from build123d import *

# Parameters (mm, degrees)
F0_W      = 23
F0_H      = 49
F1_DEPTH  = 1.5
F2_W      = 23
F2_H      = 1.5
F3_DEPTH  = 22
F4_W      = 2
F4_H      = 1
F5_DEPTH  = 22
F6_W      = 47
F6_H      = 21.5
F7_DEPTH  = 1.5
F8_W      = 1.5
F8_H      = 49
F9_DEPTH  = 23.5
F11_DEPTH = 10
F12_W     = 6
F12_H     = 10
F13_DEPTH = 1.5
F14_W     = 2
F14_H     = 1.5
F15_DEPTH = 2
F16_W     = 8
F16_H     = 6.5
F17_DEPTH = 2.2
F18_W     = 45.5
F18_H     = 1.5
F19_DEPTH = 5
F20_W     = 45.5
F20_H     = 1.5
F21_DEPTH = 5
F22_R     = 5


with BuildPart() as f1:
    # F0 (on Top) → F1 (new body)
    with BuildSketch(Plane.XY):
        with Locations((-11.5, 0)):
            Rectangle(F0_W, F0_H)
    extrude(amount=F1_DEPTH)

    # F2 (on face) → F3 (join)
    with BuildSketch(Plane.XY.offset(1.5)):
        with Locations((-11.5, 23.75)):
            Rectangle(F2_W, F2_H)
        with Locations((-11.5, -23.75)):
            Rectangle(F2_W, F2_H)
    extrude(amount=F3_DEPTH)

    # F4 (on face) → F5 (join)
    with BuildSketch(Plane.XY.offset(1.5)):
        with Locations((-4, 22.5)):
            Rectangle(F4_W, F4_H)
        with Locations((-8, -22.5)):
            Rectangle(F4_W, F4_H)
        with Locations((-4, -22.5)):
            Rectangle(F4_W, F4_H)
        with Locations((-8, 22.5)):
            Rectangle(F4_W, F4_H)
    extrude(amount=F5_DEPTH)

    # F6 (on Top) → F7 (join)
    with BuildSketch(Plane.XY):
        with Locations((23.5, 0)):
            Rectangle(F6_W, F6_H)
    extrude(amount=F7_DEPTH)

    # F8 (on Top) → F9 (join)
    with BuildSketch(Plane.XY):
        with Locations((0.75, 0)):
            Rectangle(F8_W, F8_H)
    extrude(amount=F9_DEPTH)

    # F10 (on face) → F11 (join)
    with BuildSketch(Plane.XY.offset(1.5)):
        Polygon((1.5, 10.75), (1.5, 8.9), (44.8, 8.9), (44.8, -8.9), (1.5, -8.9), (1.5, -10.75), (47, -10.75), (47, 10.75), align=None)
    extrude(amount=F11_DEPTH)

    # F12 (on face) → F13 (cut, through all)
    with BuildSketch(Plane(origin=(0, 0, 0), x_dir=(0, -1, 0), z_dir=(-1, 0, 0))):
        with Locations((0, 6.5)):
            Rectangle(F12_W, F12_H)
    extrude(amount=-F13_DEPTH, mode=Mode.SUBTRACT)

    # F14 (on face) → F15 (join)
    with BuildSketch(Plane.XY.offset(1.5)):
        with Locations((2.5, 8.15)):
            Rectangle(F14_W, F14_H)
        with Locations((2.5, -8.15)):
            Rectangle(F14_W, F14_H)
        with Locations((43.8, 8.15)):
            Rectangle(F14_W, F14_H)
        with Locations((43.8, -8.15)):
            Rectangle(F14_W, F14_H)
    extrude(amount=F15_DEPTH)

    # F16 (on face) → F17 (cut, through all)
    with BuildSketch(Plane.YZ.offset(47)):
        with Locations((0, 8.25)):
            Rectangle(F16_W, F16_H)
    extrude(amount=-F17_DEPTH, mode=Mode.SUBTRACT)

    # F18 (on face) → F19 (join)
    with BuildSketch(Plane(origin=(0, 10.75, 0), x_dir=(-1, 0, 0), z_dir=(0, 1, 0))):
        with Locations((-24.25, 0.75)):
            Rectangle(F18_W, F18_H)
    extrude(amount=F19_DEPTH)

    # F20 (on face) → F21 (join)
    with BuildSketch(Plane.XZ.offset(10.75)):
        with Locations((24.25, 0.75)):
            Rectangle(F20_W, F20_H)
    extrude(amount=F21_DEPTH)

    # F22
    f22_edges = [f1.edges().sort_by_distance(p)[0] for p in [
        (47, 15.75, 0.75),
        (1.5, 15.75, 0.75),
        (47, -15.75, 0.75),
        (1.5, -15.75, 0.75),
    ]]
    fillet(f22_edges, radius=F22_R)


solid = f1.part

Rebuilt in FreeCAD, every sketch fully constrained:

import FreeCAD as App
import Part
import Sketcher


def edges_at(feature, points):
    """Names of the edges that pass closest to the given points."""
    edges = feature.Shape.Edges
    near = lambda p: min(range(len(edges)), key=lambda i: edges[i].distToShape(Part.Vertex(*p))[0])
    return sorted({f"Edge{near(p) + 1}" for p in points})


def add_polygon(sketch, points):
    """Adds a closed chain of lines whose ends are joined by coincident constraints."""
    first, n = sketch.GeometryCount, len(points)
    for a, b in zip(points, points[1:] + points[:1]):
        sketch.addGeometry(Part.LineSegment(App.Vector(*a, 0), App.Vector(*b, 0)), False)
    for i in range(n):
        sketch.addConstraint(Sketcher.Constraint("Coincident", first + i, 2, first + (i + 1) % n, 1))

doc = App.newDocument("Part")
params = doc.addObject("Spreadsheet::Sheet", "Params")
for row, (alias, value) in enumerate([
    ("sketch1_width", "23 mm"),
    ("sketch1_height", "49 mm"),
    ("pad1_length", "1.5 mm"),
    ("sketch2_width", "23 mm"),
    ("sketch2_height", "1.5 mm"),
    ("pad2_length", "22 mm"),
    ("sketch3_width", "2 mm"),
    ("sketch3_height", "1 mm"),
    ("pad3_length", "22 mm"),
    ("sketch4_width", "47 mm"),
    ("sketch4_height", "21.5 mm"),
    ("pad4_length", "1.5 mm"),
    ("sketch5_height", "49 mm"),
    ("sketch5_width", "1.5 mm"),
    ("pad5_length", "23.5 mm"),
    ("sketch6_width", "43.3 mm"),
    ("sketch6_width2", "45.5 mm"),
    ("sketch6_height", "17.8 mm"),
    ("sketch6_height2", "21.5 mm"),
    ("pad6_length", "10 mm"),
    ("sketch7_width", "6 mm"),
    ("sketch7_height", "10 mm"),
    ("pocket1_length", "1.5 mm"),
    ("sketch8_width", "2 mm"),
    ("sketch8_height", "1.5 mm"),
    ("pad7_length", "2 mm"),
    ("sketch9_width", "8 mm"),
    ("sketch9_height", "6.5 mm"),
    ("pocket2_length", "2.2 mm"),
    ("sketch10_width", "45.5 mm"),
    ("sketch10_height", "1.5 mm"),
    ("pad8_length", "5 mm"),
    ("sketch11_width", "45.5 mm"),
    ("sketch11_height", "1.5 mm"),
    ("pad9_length", "5 mm"),
    ("fillet_radius", "5 mm"),
], start=1):
    params.set(f"A{row}", alias)
    params.set(f"B{row}", "=" + value)
    params.setAlias(f"B{row}", alias)

body = doc.addObject("PartDesign::Body", "Body")

sketch1 = doc.addObject("Sketcher::SketchObject", "Sketch")
body.addObject(sketch1)
sketch1.AttachmentSupport = (doc.XY_Plane, [""])
sketch1.MapMode = "FlatFace"
add_polygon(sketch1, [(-23, 24), (-23, -24), (0, -24), (0, 24)])
sketch1.addConstraint([
    Sketcher.Constraint("Vertical", 0),
    Sketcher.Constraint("Horizontal", 1),
    Sketcher.Constraint("Vertical", 2),
    Sketcher.Constraint("Horizontal", 3),
    Sketcher.Constraint("Symmetric", 1, 2, 2, 2, -1, 1),
    Sketcher.Constraint("DistanceX", 1, 1, 1, 2, 23.0),
    Sketcher.Constraint("DistanceY", 0, 2, 0, 1, 49.0),
])
sketch1.setExpression("Constraints[9]", "Params.sketch1_width")
sketch1.setExpression("Constraints[10]", "Params.sketch1_height")
pad1 = doc.addObject("PartDesign::Pad", "Pad")
body.addObject(pad1)
pad1.Profile = sketch1
pad1.setExpression("Length", "Params.pad1_length")

sketch2 = doc.addObject("Sketcher::SketchObject", "Sketch001")
body.addObject(sketch2)
sketch2.AttachmentSupport = (doc.XY_Plane, [""])
sketch2.MapMode = "FlatFace"
sketch2.AttachmentOffset = App.Placement(App.Vector(0, 0, 1.5), App.Rotation())
add_polygon(sketch2, [(-23, 24.5), (-23, 23), (0, 23), (0, 24.5)])
add_polygon(sketch2, [(-23, -23), (-23, -24.5), (0, -24.5), (0, -23)])
sketch2.addConstraint([
    Sketcher.Constraint("Vertical", 0),
    Sketcher.Constraint("Horizontal", 1),
    Sketcher.Constraint("Vertical", 2),
    Sketcher.Constraint("Horizontal", 3),
    Sketcher.Constraint("Vertical", 4),
    Sketcher.Constraint("Horizontal", 5),
    Sketcher.Constraint("Vertical", 6),
    Sketcher.Constraint("Horizontal", 7),
    Sketcher.Constraint("Symmetric", 2, 2, 5, 2, -1, 1),
    Sketcher.Constraint("Symmetric", 1, 2, 6, 2, -1),
    Sketcher.Constraint("Vertical", 3, 2, 4, 2),
    Sketcher.Constraint("DistanceX", 1, 1, 1, 2, 23.0),
    Sketcher.Constraint("DistanceY", 0, 2, 0, 1, 1.5),
    Sketcher.Constraint("DistanceY", -1, 1, 0, 2, 23.0),
])
sketch2.setExpression("Constraints[19]", "Params.sketch2_width")
sketch2.setExpression("Constraints[20]", "Params.sketch2_height")
pad2 = doc.addObject("PartDesign::Pad", "Pad001")
body.addObject(pad2)
pad2.Profile = sketch2
pad2.setExpression("Length", "Params.pad2_length")

sketch3 = doc.addObject("Sketcher::SketchObject", "Sketch002")
body.addObject(sketch3)
sketch3.AttachmentSupport = (doc.XY_Plane, [""])
sketch3.MapMode = "FlatFace"
sketch3.AttachmentOffset = App.Placement(App.Vector(0, 0, 1.5), App.Rotation())
add_polygon(sketch3, [(-5, 23), (-5, 22), (-3, 22), (-3, 23)])
add_polygon(sketch3, [(-9, -22), (-9, -23), (-7, -23), (-7, -22)])
add_polygon(sketch3, [(-5, -22), (-5, -23), (-3, -23), (-3, -22)])
add_polygon(sketch3, [(-9, 23), (-9, 22), (-7, 22), (-7, 23)])
sketch3.addConstraint([
    Sketcher.Constraint("Vertical", 0),
    Sketcher.Constraint("Horizontal", 1),
    Sketcher.Constraint("Vertical", 2),
    Sketcher.Constraint("Horizontal", 3),
    Sketcher.Constraint("Vertical", 4),
    Sketcher.Constraint("Horizontal", 5),
    Sketcher.Constraint("Vertical", 6),
    Sketcher.Constraint("Horizontal", 7),
    Sketcher.Constraint("Vertical", 8),
    Sketcher.Constraint("Horizontal", 9),
    Sketcher.Constraint("Vertical", 10),
    Sketcher.Constraint("Horizontal", 11),
    Sketcher.Constraint("Vertical", 12),
    Sketcher.Constraint("Horizontal", 13),
    Sketcher.Constraint("Vertical", 14),
    Sketcher.Constraint("Horizontal", 15),
    Sketcher.Constraint("Symmetric", 3, 2, 8, 2, -1),
    Sketcher.Constraint("Symmetric", 1, 2, 10, 2, -1),
    Sketcher.Constraint("Symmetric", 7, 2, 12, 2, -1),
    Sketcher.Constraint("Symmetric", 5, 2, 14, 2, -1),
    Sketcher.Constraint("Horizontal", 5, 2, 8, 2),
    Sketcher.Constraint("Horizontal", 7, 2, 10, 2),
    Sketcher.Constraint("Equal", 3, 5),
    Sketcher.Constraint("DistanceX", 1, 1, 1, 2, 2.0),
    Sketcher.Constraint("DistanceY", 0, 2, 0, 1, 1.0),
    Sketcher.Constraint("DistanceX", 0, 2, -1, 1, 5.0),
    Sketcher.Constraint("DistanceY", -1, 1, 0, 2, 22.0),
    Sketcher.Constraint("DistanceX", 4, 2, -1, 1, 9.0),
])
sketch3.setExpression("Constraints[39]", "Params.sketch3_width")
sketch3.setExpression("Constraints[40]", "Params.sketch3_height")
pad3 = doc.addObject("PartDesign::Pad", "Pad002")
body.addObject(pad3)
pad3.Profile = sketch3
pad3.setExpression("Length", "Params.pad3_length")

sketch4 = doc.addObject("Sketcher::SketchObject", "Sketch003")
body.addObject(sketch4)
sketch4.AttachmentSupport = (doc.XY_Plane, [""])
sketch4.MapMode = "FlatFace"
add_polygon(sketch4, [(0, 11), (0, -11), (47, -11), (47, 11)])
sketch4.addConstraint([
    Sketcher.Constraint("Vertical", 0),
    Sketcher.Constraint("Horizontal", 1),
    Sketcher.Constraint("Vertical", 2),
    Sketcher.Constraint("Horizontal", 3),
    Sketcher.Constraint("Symmetric", 0, 2, 3, 2, -1, 1),
    Sketcher.Constraint("DistanceX", 1, 1, 1, 2, 47.0),
    Sketcher.Constraint("DistanceY", 0, 2, 0, 1, 21.5),
])
sketch4.setExpression("Constraints[9]", "Params.sketch4_width")
sketch4.setExpression("Constraints[10]", "Params.sketch4_height")
pad4 = doc.addObject("PartDesign::Pad", "Pad003")
body.addObject(pad4)
pad4.Profile = sketch4
pad4.setExpression("Length", "Params.pad4_length")

sketch5 = doc.addObject("Sketcher::SketchObject", "Sketch004")
body.addObject(sketch5)
sketch5.AttachmentSupport = (doc.XY_Plane, [""])
sketch5.MapMode = "FlatFace"
add_polygon(sketch5, [(0, 24.5), (0, -24.5), (1.5, -24.5), (1.5, 24.5)])
sketch5.addConstraint([
    Sketcher.Constraint("Vertical", 0),
    Sketcher.Constraint("Horizontal", 1),
    Sketcher.Constraint("Vertical", 2),
    Sketcher.Constraint("Horizontal", 3),
    Sketcher.Constraint("Symmetric", 0, 2, 3, 2, -1, 1),
    Sketcher.Constraint("DistanceY", 0, 2, 0, 1, 49.0),
    Sketcher.Constraint("DistanceX", 1, 1, 1, 2, 1.5),
])
sketch5.setExpression("Constraints[9]", "Params.sketch5_height")
sketch5.setExpression("Constraints[10]", "Params.sketch5_width")
pad5 = doc.addObject("PartDesign::Pad", "Pad004")
body.addObject(pad5)
pad5.Profile = sketch5
pad5.setExpression("Length", "Params.pad5_length")

sketch6 = doc.addObject("Sketcher::SketchObject", "Sketch005")
body.addObject(sketch6)
sketch6.AttachmentSupport = (doc.XY_Plane, [""])
sketch6.MapMode = "FlatFace"
sketch6.AttachmentOffset = App.Placement(App.Vector(0, 0, 1.5), App.Rotation())
add_polygon(sketch6, [(1.5, 10.8), (1.5, 8.9), (44.8, 8.9), (44.8, -8.9), (1.5, -8.9), (1.5, -10.8), (47, -10.8), (47, 10.8)])
sketch6.addConstraint([
    Sketcher.Constraint("Vertical", 0),
    Sketcher.Constraint("Horizontal", 1),
    Sketcher.Constraint("Vertical", 2),
    Sketcher.Constraint("Horizontal", 3),
    Sketcher.Constraint("Vertical", 4),
    Sketcher.Constraint("Horizontal", 5),
    Sketcher.Constraint("Vertical", 6),
    Sketcher.Constraint("Horizontal", 7),
    Sketcher.Constraint("Symmetric", 0, 2, 3, 2, -1),
    Sketcher.Constraint("Equal", 0, 4),
    Sketcher.Constraint("DistanceX", 1, 1, 1, 2, 43.3),
    Sketcher.Constraint("DistanceX", 5, 1, 5, 2, 45.5),
    Sketcher.Constraint("DistanceY", 2, 2, 2, 1, 17.8),
    Sketcher.Constraint("DistanceY", 6, 1, 6, 2, 21.5),
    Sketcher.Constraint("DistanceX", -1, 1, 5, 2, 47.0),
])
sketch6.setExpression("Constraints[18]", "Params.sketch6_width")
sketch6.setExpression("Constraints[19]", "Params.sketch6_width2")
sketch6.setExpression("Constraints[20]", "Params.sketch6_height")
sketch6.setExpression("Constraints[21]", "Params.sketch6_height2")
pad6 = doc.addObject("PartDesign::Pad", "Pad005")
body.addObject(pad6)
pad6.Profile = sketch6
pad6.setExpression("Length", "Params.pad6_length")

sketch7 = doc.addObject("Sketcher::SketchObject", "Sketch006")
body.addObject(sketch7)
sketch7.AttachmentSupport = (doc.YZ_Plane, [""])
sketch7.MapMode = "FlatFace"
add_polygon(sketch7, [(3, 12), (3, 2), (-3, 2), (-3, 12)])
sketch7.addConstraint([
    Sketcher.Constraint("Vertical", 0),
    Sketcher.Constraint("Horizontal", 1),
    Sketcher.Constraint("Vertical", 2),
    Sketcher.Constraint("Horizontal", 3),
    Sketcher.Constraint("DistanceX", 1, 2, 1, 1, 6.0),
    Sketcher.Constraint("DistanceY", 0, 2, 0, 1, 10.0),
    Sketcher.Constraint("DistanceX", -1, 1, 0, 2, 3.0),
    Sketcher.Constraint("DistanceY", -1, 1, 0, 2, 1.5),
])
sketch7.setExpression("Constraints[8]", "Params.sketch7_width")
sketch7.setExpression("Constraints[9]", "Params.sketch7_height")
pocket1 = doc.addObject("PartDesign::Pocket", "Pocket")
body.addObject(pocket1)
pocket1.Profile = sketch7
pocket1.setExpression("Length", "Params.pocket1_length")
pocket1.Reversed = True

sketch8 = doc.addObject("Sketcher::SketchObject", "Sketch007")
body.addObject(sketch8)
sketch8.AttachmentSupport = (doc.XY_Plane, [""])
sketch8.MapMode = "FlatFace"
sketch8.AttachmentOffset = App.Placement(App.Vector(0, 0, 1.5), App.Rotation())
add_polygon(sketch8, [(1.5, 8.9), (1.5, 7.4), (3.5, 7.4), (3.5, 8.9)])
add_polygon(sketch8, [(1.5, -7.4), (1.5, -8.9), (3.5, -8.9), (3.5, -7.4)])
add_polygon(sketch8, [(42.8, 8.9), (42.8, 7.4), (44.8, 7.4), (44.8, 8.9)])
add_polygon(sketch8, [(42.8, -7.4), (42.8, -8.9), (44.8, -8.9), (44.8, -7.4)])
sketch8.addConstraint([
    Sketcher.Constraint("Vertical", 0),
    Sketcher.Constraint("Horizontal", 1),
    Sketcher.Constraint("Vertical", 2),
    Sketcher.Constraint("Horizontal", 3),
    Sketcher.Constraint("Vertical", 4),
    Sketcher.Constraint("Horizontal", 5),
    Sketcher.Constraint("Vertical", 6),
    Sketcher.Constraint("Horizontal", 7),
    Sketcher.Constraint("Vertical", 8),
    Sketcher.Constraint("Horizontal", 9),
    Sketcher.Constraint("Vertical", 10),
    Sketcher.Constraint("Horizontal", 11),
    Sketcher.Constraint("Vertical", 12),
    Sketcher.Constraint("Horizontal", 13),
    Sketcher.Constraint("Vertical", 14),
    Sketcher.Constraint("Horizontal", 15),
    Sketcher.Constraint("Symmetric", 3, 2, 4, 2, -1),
    Sketcher.Constraint("Symmetric", 1, 2, 6, 2, -1),
    Sketcher.Constraint("Symmetric", 11, 2, 12, 2, -1),
    Sketcher.Constraint("Symmetric", 9, 2, 14, 2, -1),
    Sketcher.Constraint("Horizontal", 1, 2, 8, 2),
    Sketcher.Constraint("Horizontal", 3, 2, 10, 2),
    Sketcher.Constraint("Equal", 7, 9),
    Sketcher.Constraint("DistanceX", 1, 1, 1, 2, 2.0),
    Sketcher.Constraint("DistanceY", 0, 2, 0, 1, 1.5),
    Sketcher.Constraint("DistanceX", -1, 1, 0, 2, 1.5),
    Sketcher.Constraint("DistanceY", -1, 1, 0, 2, 7.4),
    Sketcher.Constraint("DistanceX", -1, 1, 8, 2, 42.8),
])
sketch8.setExpression("Constraints[39]", "Params.sketch8_width")
sketch8.setExpression("Constraints[40]", "Params.sketch8_height")
pad7 = doc.addObject("PartDesign::Pad", "Pad006")
body.addObject(pad7)
pad7.Profile = sketch8
pad7.setExpression("Length", "Params.pad7_length")

sketch9 = doc.addObject("Sketcher::SketchObject", "Sketch008")
body.addObject(sketch9)
sketch9.AttachmentSupport = (doc.YZ_Plane, [""])
sketch9.MapMode = "FlatFace"
sketch9.AttachmentOffset = App.Placement(App.Vector(0, 0, 47), App.Rotation())
add_polygon(sketch9, [(-4, 12), (-4, 5), (4, 5), (4, 12)])
sketch9.addConstraint([
    Sketcher.Constraint("Vertical", 0),
    Sketcher.Constraint("Horizontal", 1),
    Sketcher.Constraint("Vertical", 2),
    Sketcher.Constraint("Horizontal", 3),
    Sketcher.Constraint("DistanceX", 1, 1, 1, 2, 8.0),
    Sketcher.Constraint("DistanceY", 0, 2, 0, 1, 6.5),
    Sketcher.Constraint("DistanceX", 0, 2, -1, 1, 4.0),
    Sketcher.Constraint("DistanceY", -1, 1, 0, 2, 5.0),
])
sketch9.setExpression("Constraints[8]", "Params.sketch9_width")
sketch9.setExpression("Constraints[9]", "Params.sketch9_height")
pocket2 = doc.addObject("PartDesign::Pocket", "Pocket001")
body.addObject(pocket2)
pocket2.Profile = sketch9
pocket2.setExpression("Length", "Params.pocket2_length")

sketch10 = doc.addObject("Sketcher::SketchObject", "Sketch009")
body.addObject(sketch10)
sketch10.AttachmentSupport = (doc.XZ_Plane, [""])
sketch10.MapMode = "FlatFace"
sketch10.AttachmentOffset = App.Placement(App.Vector(0, 0, -10.75), App.Rotation())
add_polygon(sketch10, [(47, 1.5), (47, 0), (1.5, 0), (1.5, 1.5)])
sketch10.addConstraint([
    Sketcher.Constraint("Vertical", 0),
    Sketcher.Constraint("Horizontal", 1),
    Sketcher.Constraint("Vertical", 2),
    Sketcher.Constraint("Horizontal", 3),
    Sketcher.Constraint("PointOnObject", 0, 2, -1),
    Sketcher.Constraint("DistanceX", 1, 2, 1, 1, 45.5),
    Sketcher.Constraint("DistanceY", 0, 2, 0, 1, 1.5),
    Sketcher.Constraint("DistanceX", -1, 1, 0, 2, 47.0),
])
sketch10.setExpression("Constraints[9]", "Params.sketch10_width")
sketch10.setExpression("Constraints[10]", "Params.sketch10_height")
pad8 = doc.addObject("PartDesign::Pad", "Pad007")
body.addObject(pad8)
pad8.Profile = sketch10
pad8.setExpression("Length", "Params.pad8_length")
pad8.Reversed = True

sketch11 = doc.addObject("Sketcher::SketchObject", "Sketch010")
body.addObject(sketch11)
sketch11.AttachmentSupport = (doc.XZ_Plane, [""])
sketch11.MapMode = "FlatFace"
sketch11.AttachmentOffset = App.Placement(App.Vector(0, 0, 10.75), App.Rotation())
add_polygon(sketch11, [(1.5, 1.5), (1.5, 0), (47, 0), (47, 1.5)])
sketch11.addConstraint([
    Sketcher.Constraint("Vertical", 0),
    Sketcher.Constraint("Horizontal", 1),
    Sketcher.Constraint("Vertical", 2),
    Sketcher.Constraint("Horizontal", 3),
    Sketcher.Constraint("PointOnObject", 0, 2, -1),
    Sketcher.Constraint("DistanceX", 1, 1, 1, 2, 45.5),
    Sketcher.Constraint("DistanceY", 0, 2, 0, 1, 1.5),
    Sketcher.Constraint("DistanceX", -1, 1, 1, 2, 47.0),
])
sketch11.setExpression("Constraints[9]", "Params.sketch11_width")
sketch11.setExpression("Constraints[10]", "Params.sketch11_height")
pad9 = doc.addObject("PartDesign::Pad", "Pad008")
body.addObject(pad9)
pad9.Profile = sketch11
pad9.setExpression("Length", "Params.pad9_length")
doc.recompute()

fillet = doc.addObject("PartDesign::Fillet", "Fillet")
body.addObject(fillet)
fillet.Base = (pad9, edges_at(pad9, [
    (47, 15.75, 0.75),
    (1.5, 15.75, 0.75),
    (47, -15.75, 0.75),
    (1.5, -15.75, 0.75),
]))
fillet.setExpression("Radius", "Params.fillet_radius")

doc.recompute()
